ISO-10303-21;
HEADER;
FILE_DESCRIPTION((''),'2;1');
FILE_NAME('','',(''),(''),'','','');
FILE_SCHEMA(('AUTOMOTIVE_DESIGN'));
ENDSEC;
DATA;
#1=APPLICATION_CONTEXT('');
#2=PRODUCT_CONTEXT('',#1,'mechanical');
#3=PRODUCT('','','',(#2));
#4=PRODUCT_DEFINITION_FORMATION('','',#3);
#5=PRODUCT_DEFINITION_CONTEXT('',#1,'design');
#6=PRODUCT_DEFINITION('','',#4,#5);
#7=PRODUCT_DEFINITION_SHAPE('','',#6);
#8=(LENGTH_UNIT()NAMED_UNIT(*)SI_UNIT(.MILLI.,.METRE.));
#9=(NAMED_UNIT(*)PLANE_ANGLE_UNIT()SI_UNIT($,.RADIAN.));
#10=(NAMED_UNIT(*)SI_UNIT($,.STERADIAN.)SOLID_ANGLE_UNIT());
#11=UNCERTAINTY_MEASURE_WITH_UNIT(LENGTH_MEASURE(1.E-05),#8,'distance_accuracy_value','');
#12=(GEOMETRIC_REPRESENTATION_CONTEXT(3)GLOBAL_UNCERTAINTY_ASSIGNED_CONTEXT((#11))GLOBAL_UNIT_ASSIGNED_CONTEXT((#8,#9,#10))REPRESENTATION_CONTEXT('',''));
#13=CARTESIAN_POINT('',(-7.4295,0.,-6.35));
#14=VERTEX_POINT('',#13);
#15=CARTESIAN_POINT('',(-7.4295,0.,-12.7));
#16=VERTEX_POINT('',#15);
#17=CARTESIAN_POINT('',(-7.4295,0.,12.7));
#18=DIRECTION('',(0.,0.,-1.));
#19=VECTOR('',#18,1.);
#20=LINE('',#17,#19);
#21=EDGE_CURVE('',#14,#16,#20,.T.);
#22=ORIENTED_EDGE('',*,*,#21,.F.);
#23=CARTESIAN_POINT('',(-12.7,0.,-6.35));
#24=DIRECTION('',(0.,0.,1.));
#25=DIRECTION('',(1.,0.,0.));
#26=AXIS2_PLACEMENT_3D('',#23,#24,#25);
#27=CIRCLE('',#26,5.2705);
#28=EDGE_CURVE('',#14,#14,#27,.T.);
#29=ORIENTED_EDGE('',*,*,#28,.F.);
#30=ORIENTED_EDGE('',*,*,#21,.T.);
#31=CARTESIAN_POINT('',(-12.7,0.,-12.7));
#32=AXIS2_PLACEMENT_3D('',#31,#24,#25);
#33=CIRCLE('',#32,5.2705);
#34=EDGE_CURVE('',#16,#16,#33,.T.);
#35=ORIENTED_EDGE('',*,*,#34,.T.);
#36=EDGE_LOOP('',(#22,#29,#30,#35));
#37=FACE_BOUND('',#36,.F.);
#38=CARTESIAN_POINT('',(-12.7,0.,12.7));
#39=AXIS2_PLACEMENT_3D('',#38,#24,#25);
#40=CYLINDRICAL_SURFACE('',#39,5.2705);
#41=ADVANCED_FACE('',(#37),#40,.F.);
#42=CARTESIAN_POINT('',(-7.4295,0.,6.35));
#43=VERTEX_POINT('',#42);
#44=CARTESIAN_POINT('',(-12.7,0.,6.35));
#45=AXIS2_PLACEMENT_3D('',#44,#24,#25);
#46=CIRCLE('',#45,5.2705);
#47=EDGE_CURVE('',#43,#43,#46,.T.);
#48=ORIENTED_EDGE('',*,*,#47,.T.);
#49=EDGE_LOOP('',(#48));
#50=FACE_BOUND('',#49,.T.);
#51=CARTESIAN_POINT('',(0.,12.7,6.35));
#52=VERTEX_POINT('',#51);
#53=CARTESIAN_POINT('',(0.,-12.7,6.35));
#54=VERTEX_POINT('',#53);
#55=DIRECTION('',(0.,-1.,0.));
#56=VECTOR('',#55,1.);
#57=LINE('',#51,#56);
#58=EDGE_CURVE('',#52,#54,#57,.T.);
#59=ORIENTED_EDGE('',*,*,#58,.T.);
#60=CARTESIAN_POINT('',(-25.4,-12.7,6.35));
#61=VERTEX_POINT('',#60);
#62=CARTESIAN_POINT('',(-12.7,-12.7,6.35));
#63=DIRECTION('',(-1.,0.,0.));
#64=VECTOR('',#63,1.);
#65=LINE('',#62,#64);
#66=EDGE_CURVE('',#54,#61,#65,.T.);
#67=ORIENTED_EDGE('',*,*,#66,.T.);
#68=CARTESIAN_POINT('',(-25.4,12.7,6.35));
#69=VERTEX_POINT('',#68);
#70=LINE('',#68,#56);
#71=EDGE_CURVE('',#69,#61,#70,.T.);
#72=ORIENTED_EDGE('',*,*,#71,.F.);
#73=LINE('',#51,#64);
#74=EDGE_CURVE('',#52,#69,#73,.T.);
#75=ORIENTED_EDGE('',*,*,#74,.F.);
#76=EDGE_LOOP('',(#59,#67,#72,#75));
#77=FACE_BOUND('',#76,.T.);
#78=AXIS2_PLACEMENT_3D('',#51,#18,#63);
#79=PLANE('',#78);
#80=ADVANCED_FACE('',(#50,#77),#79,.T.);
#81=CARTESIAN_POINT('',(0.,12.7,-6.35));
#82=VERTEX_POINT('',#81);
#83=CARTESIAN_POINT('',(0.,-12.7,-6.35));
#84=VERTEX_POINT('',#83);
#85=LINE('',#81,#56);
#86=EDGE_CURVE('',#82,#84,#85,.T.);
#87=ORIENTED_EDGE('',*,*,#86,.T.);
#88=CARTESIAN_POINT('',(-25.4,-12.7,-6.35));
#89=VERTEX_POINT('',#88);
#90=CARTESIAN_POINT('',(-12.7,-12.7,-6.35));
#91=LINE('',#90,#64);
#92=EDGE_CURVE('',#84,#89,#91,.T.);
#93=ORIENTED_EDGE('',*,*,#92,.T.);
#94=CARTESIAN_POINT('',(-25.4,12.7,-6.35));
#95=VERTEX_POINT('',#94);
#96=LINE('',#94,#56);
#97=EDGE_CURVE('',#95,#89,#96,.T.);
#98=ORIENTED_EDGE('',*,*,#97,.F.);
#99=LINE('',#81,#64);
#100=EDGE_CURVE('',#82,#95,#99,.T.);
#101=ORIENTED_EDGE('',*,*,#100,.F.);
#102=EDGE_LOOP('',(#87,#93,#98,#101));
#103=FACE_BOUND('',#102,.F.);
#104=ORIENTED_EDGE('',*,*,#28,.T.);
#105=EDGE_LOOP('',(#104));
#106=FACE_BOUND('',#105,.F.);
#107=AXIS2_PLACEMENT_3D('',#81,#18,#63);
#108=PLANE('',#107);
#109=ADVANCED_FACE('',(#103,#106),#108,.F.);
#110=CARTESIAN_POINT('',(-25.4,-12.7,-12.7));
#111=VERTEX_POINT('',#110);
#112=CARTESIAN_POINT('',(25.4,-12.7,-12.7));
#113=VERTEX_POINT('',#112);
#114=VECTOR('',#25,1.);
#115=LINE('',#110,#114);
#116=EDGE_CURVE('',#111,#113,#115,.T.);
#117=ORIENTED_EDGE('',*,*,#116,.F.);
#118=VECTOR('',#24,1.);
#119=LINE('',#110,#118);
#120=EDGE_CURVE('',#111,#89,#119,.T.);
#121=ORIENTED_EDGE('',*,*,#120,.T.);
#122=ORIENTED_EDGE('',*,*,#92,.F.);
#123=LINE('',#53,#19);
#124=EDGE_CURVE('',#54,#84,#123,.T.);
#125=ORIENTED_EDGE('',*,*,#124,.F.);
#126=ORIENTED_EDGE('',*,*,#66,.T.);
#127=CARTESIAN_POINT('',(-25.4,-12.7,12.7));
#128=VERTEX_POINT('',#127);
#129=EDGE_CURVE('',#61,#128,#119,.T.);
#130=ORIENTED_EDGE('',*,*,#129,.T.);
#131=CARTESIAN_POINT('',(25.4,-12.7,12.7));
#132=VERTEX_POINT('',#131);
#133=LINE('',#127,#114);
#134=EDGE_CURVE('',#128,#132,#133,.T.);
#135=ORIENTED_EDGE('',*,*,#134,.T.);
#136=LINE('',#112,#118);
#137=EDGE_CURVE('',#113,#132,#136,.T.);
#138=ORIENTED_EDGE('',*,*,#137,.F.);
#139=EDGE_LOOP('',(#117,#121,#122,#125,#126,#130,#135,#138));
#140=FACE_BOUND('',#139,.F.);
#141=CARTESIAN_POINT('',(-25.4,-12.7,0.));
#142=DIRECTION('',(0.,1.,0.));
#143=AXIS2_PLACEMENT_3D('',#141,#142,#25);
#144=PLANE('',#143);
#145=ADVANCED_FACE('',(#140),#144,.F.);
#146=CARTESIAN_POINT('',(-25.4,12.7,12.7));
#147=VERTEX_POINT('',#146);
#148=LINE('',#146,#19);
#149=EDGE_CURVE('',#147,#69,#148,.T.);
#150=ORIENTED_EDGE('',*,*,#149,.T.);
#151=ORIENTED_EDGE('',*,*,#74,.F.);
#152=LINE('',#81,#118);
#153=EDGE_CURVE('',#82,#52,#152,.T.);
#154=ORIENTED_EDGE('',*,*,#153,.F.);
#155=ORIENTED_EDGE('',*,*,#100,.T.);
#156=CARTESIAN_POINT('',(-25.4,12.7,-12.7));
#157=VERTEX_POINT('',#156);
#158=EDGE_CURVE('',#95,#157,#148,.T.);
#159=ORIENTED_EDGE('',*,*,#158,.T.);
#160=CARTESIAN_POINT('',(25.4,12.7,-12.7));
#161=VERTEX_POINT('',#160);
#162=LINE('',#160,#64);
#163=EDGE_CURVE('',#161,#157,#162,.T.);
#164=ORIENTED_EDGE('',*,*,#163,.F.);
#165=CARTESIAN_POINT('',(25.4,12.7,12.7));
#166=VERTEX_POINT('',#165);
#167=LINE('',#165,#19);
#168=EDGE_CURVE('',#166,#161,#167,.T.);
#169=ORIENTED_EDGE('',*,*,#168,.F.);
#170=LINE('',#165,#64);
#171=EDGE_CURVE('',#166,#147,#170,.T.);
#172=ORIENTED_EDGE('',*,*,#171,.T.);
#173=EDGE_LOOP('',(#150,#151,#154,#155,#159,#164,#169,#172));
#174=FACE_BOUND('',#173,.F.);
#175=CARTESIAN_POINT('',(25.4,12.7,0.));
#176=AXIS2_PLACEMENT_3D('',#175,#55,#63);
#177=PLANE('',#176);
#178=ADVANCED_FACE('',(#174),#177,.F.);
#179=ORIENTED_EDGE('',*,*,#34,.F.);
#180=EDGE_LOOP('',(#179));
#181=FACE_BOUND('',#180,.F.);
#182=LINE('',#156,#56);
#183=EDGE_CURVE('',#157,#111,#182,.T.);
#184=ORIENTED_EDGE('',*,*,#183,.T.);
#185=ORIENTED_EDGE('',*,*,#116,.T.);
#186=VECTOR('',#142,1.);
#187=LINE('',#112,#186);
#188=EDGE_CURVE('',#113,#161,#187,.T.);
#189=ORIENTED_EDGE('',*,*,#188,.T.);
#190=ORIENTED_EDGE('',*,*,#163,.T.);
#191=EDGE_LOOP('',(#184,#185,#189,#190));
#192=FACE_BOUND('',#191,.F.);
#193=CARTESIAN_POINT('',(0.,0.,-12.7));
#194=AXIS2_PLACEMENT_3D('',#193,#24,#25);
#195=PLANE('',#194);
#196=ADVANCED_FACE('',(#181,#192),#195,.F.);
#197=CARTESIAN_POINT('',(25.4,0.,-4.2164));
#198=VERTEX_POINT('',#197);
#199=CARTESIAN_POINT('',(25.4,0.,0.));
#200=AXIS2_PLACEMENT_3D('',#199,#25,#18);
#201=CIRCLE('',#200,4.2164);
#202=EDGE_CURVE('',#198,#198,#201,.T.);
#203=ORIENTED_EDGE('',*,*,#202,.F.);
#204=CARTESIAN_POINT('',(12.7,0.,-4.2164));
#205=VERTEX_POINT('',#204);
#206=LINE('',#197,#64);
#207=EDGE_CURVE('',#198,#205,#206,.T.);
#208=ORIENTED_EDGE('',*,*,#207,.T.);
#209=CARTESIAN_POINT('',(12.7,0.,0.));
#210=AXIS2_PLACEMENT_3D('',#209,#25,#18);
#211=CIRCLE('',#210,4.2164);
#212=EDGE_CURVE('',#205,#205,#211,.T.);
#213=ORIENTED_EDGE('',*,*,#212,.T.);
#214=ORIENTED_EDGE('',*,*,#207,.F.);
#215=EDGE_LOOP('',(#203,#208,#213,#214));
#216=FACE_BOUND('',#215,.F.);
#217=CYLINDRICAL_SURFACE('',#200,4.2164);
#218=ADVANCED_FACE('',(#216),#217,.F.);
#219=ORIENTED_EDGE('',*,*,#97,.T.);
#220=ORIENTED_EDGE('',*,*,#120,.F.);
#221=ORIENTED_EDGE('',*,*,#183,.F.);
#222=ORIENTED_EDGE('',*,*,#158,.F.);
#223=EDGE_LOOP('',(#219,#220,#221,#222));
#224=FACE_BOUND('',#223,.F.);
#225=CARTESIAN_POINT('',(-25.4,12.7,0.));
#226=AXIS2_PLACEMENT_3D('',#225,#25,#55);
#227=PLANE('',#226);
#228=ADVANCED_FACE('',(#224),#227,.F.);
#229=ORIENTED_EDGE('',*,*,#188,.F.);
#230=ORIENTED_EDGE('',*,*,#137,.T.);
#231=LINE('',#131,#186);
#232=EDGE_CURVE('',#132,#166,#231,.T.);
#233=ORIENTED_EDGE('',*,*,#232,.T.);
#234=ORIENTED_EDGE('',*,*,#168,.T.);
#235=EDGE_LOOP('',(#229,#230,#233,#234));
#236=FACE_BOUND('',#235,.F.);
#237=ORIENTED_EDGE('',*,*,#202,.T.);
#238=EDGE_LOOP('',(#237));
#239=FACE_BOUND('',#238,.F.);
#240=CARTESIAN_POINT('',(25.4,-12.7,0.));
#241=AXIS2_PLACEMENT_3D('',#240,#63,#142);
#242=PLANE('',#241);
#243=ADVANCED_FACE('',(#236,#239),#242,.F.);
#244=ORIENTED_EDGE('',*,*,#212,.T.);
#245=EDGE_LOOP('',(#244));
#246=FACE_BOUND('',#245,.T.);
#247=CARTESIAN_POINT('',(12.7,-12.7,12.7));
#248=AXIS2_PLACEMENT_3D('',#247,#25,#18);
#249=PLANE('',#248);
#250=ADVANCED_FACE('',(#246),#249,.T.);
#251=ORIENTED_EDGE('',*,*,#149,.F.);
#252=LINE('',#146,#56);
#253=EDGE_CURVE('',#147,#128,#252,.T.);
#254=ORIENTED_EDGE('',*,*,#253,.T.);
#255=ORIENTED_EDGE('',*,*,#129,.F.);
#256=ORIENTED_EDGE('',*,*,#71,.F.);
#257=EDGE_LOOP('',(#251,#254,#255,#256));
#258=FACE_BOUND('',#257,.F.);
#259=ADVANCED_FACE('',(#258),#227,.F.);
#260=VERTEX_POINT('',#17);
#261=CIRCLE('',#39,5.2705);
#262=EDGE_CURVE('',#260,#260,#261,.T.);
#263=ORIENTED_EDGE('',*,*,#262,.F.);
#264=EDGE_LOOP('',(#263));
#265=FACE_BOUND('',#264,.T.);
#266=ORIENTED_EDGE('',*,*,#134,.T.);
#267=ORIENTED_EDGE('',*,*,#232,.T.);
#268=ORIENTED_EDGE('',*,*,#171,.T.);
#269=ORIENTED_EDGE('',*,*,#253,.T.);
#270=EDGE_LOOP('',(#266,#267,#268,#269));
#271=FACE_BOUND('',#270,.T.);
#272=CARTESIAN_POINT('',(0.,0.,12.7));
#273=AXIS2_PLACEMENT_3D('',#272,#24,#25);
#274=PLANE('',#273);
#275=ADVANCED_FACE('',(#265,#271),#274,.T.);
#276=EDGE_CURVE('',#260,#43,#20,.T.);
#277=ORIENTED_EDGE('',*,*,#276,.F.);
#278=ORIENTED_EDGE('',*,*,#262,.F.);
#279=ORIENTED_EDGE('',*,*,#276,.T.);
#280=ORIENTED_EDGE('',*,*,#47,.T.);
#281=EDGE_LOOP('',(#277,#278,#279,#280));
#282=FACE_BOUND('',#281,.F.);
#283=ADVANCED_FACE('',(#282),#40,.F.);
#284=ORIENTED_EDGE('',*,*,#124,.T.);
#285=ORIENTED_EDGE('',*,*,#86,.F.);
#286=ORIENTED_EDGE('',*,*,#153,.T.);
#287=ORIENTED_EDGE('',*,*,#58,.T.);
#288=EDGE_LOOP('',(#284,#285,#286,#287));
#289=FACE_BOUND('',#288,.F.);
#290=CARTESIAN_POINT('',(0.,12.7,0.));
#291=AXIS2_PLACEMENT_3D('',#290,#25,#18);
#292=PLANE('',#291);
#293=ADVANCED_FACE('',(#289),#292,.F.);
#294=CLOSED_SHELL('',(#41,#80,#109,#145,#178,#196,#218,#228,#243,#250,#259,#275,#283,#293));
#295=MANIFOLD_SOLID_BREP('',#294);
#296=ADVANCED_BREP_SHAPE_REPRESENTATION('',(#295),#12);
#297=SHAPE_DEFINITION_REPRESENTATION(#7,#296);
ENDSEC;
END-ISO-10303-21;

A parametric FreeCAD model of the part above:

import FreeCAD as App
import Part
import Sketcher
from FreeCAD import Vector
Q = App.Units.Quantity


def add_polygon(sketch, points):
    """Adds a closed chain of lines whose ends are joined by coincident constraints."""
    first, n = sketch.GeometryCount, len(points)
    for a, b in zip(points, points[1:] + points[:1]):
        sketch.addGeometry(Part.LineSegment(App.Vector(*a, 0), App.Vector(*b, 0)), False)
    for i in range(n):
        sketch.addConstraint(Sketcher.Constraint("Coincident", first + i, 2, first + (i + 1) % n, 1))

doc = App.newDocument("Part")
body = doc.addObject("PartDesign::Body", "Body")

# Sketch on XY plane
sketch1 = doc.addObject("Sketcher::SketchObject", "Sketch")
body.addObject(sketch1)
sketch1.AttachmentSupport = (doc.XY_Plane, [""])
sketch1.MapMode = "FlatFace"
add_polygon(sketch1, [(-25.4, 12.7), (-25.4, -12.7), (25.4, -12.7), (25.4, 12.7)])  # lines 0-3
sketch1.addConstraint(Sketcher.Constraint("Vertical", 0))
sketch1.addConstraint(Sketcher.Constraint("Horizontal", 1))
sketch1.addConstraint(Sketcher.Constraint("Vertical", 2))
sketch1.addConstraint(Sketcher.Constraint("Horizontal", 3))
sketch1.addConstraint(Sketcher.Constraint("Symmetric", 0, 2, 2, 2, -1, 1))
sketch1.addConstraint(Sketcher.Constraint("DistanceX", 1, 1, 1, 2, Q("2 in")))
sketch1.addConstraint(Sketcher.Constraint("DistanceY", 0, 2, 0, 1, Q("1 in")))
pad1 = doc.addObject("PartDesign::Pad", "Pad")
body.addObject(pad1)
pad1.Profile = sketch1
pad1.Length = Q("1 in")
pad1.Midplane = True

# Sketch on XZ plane
sketch2 = doc.addObject("Sketcher::SketchObject", "Sketch001")
body.addObject(sketch2)
sketch2.AttachmentSupport = (doc.XZ_Plane, [""])
sketch2.MapMode = "FlatFace"
sketch2.AttachmentOffset = App.Placement(Vector(0, 0, -0.5 * 25.4), App.Rotation())
add_polygon(sketch2, [(0, 6.35), (0, -6.35), (-25.4, -6.35), (-25.4, 6.35)])  # lines 0-3
sketch2.addConstraint(Sketcher.Constraint("Vertical", 0))
sketch2.addConstraint(Sketcher.Constraint("Horizontal", 1))
sketch2.addConstraint(Sketcher.Constraint("Vertical", 2))
sketch2.addConstraint(Sketcher.Constraint("Horizontal", 3))
sketch2.addConstraint(Sketcher.Constraint("Symmetric", 0, 2, 3, 2, -1, 1))
sketch2.addConstraint(Sketcher.Constraint("DistanceX", 1, 2, 1, 1, Q("1 in")))
sketch2.addConstraint(Sketcher.Constraint("DistanceY", 0, 2, 0, 1, Q("0.5 in")))
pocket1 = doc.addObject("PartDesign::Pocket", "Pocket")
body.addObject(pocket1)
pocket1.Profile = sketch2
pocket1.Type = "ThroughAll"
pocket1.Reversed = True

# Sketch on XY plane
sketch3 = doc.addObject("Sketcher::SketchObject", "Sketch002")
body.addObject(sketch3)
sketch3.AttachmentSupport = (doc.XY_Plane, [""])
sketch3.MapMode = "FlatFace"
sketch3.AttachmentOffset = App.Placement(Vector(0, 0, 0.5 * 25.4), App.Rotation())
sketch3.addGeometry(Part.Circle(Vector(-12.7, 0, 0), Vector(0, 0, 1), 5.2705), False)
sketch3.addConstraint(Sketcher.Constraint("PointOnObject", 0, 3, -1))
sketch3.addConstraint(Sketcher.Constraint("Diameter", 0, Q("0.415 in")))
sketch3.addConstraint(Sketcher.Constraint("DistanceX", 0, 3, -1, 1, Q("0.5 in")))
pocket2 = doc.addObject("PartDesign::Pocket", "Pocket001")
body.addObject(pocket2)
pocket2.Profile = sketch3
pocket2.Type = "ThroughAll"

# Sketch on YZ plane
sketch4 = doc.addObject("Sketcher::SketchObject", "Sketch003")
body.addObject(sketch4)
sketch4.AttachmentSupport = (doc.YZ_Plane, [""])
sketch4.MapMode = "FlatFace"
sketch4.AttachmentOffset = App.Placement(Vector(0, 0, 1 * 25.4), App.Rotation())
sketch4.addGeometry(Part.Circle(Vector(0, 0, 0), Vector(0, 0, 1), 4.2164), False)
sketch4.addConstraint(Sketcher.Constraint("Coincident", 0, 3, -1, 1))
sketch4.addConstraint(Sketcher.Constraint("Diameter", 0, Q("0.332 in")))
pocket3 = doc.addObject("PartDesign::Pocket", "Pocket002")
body.addObject(pocket3)
pocket3.Profile = sketch4
pocket3.Length = Q("0.5 in")

doc.recompute()
